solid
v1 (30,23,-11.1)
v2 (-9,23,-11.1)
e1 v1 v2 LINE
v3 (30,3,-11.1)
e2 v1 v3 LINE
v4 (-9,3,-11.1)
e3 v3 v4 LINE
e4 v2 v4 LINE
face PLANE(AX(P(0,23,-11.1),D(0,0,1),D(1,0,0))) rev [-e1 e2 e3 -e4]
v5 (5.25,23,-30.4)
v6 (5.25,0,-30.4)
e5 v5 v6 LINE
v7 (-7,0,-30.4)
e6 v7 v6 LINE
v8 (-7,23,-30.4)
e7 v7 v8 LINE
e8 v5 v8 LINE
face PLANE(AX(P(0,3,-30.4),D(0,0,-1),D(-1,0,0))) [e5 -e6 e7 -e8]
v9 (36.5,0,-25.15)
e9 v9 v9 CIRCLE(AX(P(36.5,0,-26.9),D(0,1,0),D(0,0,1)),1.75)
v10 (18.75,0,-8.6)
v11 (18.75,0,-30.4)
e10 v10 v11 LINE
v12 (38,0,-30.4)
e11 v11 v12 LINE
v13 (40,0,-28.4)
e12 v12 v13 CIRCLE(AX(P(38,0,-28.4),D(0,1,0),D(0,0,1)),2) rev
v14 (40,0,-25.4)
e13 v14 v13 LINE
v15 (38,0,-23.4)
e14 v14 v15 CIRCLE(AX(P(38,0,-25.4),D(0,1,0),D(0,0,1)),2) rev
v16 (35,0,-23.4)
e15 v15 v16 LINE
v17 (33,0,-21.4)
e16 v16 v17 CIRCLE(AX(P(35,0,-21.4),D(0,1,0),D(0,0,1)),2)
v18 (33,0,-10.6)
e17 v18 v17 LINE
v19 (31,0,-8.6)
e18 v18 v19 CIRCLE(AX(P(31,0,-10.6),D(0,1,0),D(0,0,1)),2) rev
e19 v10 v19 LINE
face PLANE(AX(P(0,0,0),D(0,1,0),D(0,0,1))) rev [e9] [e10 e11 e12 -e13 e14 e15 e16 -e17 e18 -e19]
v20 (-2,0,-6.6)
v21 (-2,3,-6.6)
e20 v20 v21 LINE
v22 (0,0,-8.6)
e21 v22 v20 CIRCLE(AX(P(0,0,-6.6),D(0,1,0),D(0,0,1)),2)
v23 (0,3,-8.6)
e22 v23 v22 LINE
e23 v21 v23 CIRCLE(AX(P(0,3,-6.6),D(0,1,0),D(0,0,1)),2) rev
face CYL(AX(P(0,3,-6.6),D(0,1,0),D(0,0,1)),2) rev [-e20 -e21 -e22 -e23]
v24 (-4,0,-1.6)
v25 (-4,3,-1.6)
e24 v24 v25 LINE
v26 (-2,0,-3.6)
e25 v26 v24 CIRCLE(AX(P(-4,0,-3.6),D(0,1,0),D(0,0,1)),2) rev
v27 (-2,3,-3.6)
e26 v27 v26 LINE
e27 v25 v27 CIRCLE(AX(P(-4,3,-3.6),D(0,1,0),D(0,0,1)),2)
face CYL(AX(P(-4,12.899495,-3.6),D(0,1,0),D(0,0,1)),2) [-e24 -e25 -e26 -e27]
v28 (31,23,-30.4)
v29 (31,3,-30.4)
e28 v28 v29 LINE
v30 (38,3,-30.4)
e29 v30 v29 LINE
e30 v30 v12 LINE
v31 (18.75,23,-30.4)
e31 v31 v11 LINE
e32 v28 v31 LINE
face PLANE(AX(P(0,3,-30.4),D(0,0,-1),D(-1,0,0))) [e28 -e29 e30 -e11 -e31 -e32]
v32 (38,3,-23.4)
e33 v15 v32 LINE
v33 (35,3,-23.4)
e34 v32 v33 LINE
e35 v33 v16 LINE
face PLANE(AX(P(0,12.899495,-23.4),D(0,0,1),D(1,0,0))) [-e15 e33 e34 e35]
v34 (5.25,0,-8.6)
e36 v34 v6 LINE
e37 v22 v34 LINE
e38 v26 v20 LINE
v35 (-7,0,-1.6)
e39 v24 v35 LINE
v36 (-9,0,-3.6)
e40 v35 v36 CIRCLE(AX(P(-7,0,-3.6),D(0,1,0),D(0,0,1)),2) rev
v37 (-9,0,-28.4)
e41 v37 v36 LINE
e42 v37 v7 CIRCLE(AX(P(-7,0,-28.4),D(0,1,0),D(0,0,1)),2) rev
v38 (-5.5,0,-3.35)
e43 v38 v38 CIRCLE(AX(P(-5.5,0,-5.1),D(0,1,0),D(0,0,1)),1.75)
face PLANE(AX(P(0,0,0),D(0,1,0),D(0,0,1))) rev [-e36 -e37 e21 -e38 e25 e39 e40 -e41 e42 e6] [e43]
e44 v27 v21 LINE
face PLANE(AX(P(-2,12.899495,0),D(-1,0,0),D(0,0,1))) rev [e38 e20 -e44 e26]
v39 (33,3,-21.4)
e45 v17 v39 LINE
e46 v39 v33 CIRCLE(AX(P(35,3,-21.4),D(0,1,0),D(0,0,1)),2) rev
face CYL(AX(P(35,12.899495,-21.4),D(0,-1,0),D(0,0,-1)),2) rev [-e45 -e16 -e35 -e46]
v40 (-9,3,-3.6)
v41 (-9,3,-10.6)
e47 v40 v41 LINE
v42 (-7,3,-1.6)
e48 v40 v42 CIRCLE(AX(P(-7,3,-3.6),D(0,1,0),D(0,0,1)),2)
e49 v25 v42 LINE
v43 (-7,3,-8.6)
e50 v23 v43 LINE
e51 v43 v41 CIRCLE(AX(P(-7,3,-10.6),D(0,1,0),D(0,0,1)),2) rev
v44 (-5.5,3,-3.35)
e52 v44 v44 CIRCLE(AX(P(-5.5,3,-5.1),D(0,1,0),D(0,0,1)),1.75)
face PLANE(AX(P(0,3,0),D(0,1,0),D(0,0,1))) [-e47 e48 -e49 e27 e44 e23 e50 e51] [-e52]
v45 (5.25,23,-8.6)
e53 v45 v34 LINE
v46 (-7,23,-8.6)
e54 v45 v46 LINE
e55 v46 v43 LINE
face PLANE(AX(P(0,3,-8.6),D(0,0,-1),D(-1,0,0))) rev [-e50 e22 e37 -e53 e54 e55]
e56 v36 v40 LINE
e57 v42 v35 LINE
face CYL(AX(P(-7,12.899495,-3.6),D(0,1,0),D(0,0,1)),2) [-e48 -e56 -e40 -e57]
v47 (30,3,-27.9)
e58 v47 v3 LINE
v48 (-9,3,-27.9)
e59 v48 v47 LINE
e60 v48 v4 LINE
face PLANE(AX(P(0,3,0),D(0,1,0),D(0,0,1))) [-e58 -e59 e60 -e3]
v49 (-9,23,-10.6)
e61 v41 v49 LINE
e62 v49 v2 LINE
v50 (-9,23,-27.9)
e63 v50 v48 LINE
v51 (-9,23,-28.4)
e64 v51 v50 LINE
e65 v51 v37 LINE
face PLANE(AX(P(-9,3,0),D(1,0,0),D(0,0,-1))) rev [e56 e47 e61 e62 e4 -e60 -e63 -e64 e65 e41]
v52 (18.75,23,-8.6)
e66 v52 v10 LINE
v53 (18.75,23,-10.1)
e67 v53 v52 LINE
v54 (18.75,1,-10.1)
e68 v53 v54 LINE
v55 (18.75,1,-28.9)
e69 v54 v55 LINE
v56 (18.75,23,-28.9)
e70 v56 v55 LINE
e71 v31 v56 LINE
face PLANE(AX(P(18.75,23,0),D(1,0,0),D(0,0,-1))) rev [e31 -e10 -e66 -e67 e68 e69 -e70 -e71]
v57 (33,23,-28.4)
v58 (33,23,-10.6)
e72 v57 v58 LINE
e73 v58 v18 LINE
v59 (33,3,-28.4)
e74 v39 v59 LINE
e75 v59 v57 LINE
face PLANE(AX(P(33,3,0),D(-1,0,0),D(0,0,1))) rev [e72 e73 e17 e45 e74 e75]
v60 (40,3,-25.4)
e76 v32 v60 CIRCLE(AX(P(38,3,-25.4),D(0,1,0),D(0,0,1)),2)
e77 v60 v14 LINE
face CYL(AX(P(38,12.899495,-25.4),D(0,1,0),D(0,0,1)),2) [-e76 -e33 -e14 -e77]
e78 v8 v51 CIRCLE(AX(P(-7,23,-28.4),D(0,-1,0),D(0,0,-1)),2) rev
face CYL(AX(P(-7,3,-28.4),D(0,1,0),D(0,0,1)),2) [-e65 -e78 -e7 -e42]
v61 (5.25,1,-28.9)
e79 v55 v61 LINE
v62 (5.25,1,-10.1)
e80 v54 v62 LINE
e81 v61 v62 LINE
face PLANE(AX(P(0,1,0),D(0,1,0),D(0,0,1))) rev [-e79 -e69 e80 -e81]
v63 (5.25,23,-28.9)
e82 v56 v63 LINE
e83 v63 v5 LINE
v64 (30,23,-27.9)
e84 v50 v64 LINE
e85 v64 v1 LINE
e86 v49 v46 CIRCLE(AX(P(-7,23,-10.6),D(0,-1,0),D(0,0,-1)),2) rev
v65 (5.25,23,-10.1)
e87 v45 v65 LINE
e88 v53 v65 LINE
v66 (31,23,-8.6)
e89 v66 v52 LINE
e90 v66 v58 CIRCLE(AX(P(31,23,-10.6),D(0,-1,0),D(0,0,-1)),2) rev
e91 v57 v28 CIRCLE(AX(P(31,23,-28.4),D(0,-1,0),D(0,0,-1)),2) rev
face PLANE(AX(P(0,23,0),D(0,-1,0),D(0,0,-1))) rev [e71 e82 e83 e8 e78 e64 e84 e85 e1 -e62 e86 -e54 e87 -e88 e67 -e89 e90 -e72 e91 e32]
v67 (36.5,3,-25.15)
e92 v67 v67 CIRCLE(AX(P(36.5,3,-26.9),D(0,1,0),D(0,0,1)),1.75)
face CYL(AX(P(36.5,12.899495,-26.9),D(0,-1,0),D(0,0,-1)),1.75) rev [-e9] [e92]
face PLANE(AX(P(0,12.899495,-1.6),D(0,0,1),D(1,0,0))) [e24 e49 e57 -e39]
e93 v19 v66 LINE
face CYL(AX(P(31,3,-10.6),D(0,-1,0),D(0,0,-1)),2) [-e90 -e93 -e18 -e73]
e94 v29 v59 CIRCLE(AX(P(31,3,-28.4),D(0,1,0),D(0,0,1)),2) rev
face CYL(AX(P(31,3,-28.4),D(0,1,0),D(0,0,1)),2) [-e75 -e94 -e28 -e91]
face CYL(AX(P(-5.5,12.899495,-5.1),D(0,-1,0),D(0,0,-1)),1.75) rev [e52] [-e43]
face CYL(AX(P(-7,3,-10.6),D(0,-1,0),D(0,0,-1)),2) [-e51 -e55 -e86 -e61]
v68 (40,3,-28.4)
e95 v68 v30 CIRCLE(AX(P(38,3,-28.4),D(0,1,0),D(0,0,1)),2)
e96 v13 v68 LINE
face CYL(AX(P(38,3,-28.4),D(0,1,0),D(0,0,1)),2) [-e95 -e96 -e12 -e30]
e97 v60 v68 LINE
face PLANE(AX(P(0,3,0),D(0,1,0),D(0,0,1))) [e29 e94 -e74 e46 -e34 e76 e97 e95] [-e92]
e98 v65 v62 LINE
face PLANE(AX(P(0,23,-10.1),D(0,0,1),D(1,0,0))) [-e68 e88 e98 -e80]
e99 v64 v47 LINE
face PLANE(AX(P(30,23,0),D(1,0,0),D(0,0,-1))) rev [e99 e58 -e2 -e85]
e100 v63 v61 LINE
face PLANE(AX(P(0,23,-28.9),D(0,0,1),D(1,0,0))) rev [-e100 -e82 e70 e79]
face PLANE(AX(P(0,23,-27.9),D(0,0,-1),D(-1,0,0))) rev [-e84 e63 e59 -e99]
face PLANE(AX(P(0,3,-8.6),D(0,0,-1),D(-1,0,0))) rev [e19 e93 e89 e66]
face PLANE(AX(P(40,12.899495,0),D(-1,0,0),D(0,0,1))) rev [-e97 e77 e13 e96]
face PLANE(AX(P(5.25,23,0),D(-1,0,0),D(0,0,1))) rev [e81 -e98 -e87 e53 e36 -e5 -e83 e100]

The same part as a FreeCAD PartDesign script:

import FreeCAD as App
import Part
import Sketcher
from FreeCAD import Vector
Q = App.Units.Quantity


def edges_at(feature, points):
    """Names of the edges that pass closest to the given points."""
    edges = feature.Shape.Edges
    near = lambda p: min(range(len(edges)), key=lambda i: edges[i].distToShape(Part.Vertex(*p))[0])
    return sorted({f"Edge{near(p) + 1}" for p in points})

doc = App.newDocument("Part")
params = doc.addObject("Spreadsheet::Sheet", "Params")
for row, (alias, value) in enumerate([
    ("sketch1_width", "42 mm"),
    ("sketch1_height", "21.8 mm"),
    ("pad1_length", "3 mm"),
    ("sketch2_width", "39 mm"),
    ("sketch2_width2", "13.5 mm"),
    ("sketch2_height", "16.8 mm"),
    ("sketch2_height2", "2.5 mm"),
    ("sketch2_height3", "1.5 mm"),
    ("pad2_length", "20 mm"),
    ("sketch3_width", "13.5 mm"),
    ("sketch3_height", "1.5 mm"),
    ("sketch4_width", "13.5 mm"),
    ("sketch4_height", "21.8 mm"),
    ("pocket2_length", "1 mm"),
    ("sketch5_diameter", "3.5 mm"),
    ("sketch5_width", "7 mm"),
    ("pad3_length", "3 mm"),
    ("fillet_radius", "2 mm"),
], start=1):
    params.set(f"A{row}", alias)
    params.set(f"B{row}", "=" + value)
    params.setAlias(f"B{row}", alias)

body = doc.addObject("PartDesign::Body", "Body")

# Sketch on XZ plane
sketch1 = body.newObject("Sketcher::SketchObject", "Sketch")
sketch1.AttachmentSupport = (doc.getObject("XZ_Plane"), [""])
sketch1.MapMode = "FlatFace"
sketch1.addGeometry([
    Part.LineSegment(Vector(-9, -30.4, 0), Vector(-9, -8.6, 0)),
    Part.LineSegment(Vector(-9, -8.6, 0), Vector(33, -8.6, 0)),
    Part.LineSegment(Vector(33, -8.6, 0), Vector(33, -30.4, 0)),
    Part.LineSegment(Vector(33, -30.4, 0), Vector(-9, -30.4, 0)),
], False)
sketch1.addConstraint([
    Sketcher.Constraint("Coincident", 0, 2, 1, 1),
    Sketcher.Constraint("Coincident", 1, 2, 2, 1),
    Sketcher.Constraint("Coincident", 2, 2, 3, 1),
    Sketcher.Constraint("Coincident", 3, 2, 0, 1),
    Sketcher.Constraint("Vertical", 0),
    Sketcher.Constraint("Horizontal", 1),
    Sketcher.Constraint("Vertical", 2),
    Sketcher.Constraint("Horizontal", 3),
    Sketcher.Constraint("DistanceX", 1, 1, 1, 2, Q("42 mm")),
    Sketcher.Constraint("DistanceY", 0, 1, 0, 2, Q("21.8 mm")),
    Sketcher.Constraint("DistanceX", 0, 2, -1, 1, Q("9 mm")),
    Sketcher.Constraint("DistanceY", 0, 2, -1, 1, Q("8.6 mm")),
])
sketch1.setExpression("Constraints[8]", "Params.sketch1_width")
sketch1.setExpression("Constraints[9]", "Params.sketch1_height")
pad1 = body.newObject("PartDesign::Pad", "Pad")
pad1.Profile = sketch1
pad1.setExpression("Length", "Params.pad1_length")
pad1.Reversed = True

# Sketch on XZ plane
sketch2 = body.newObject("Sketcher::SketchObject", "Sketch001")
sketch2.AttachmentSupport = (doc.getObject("XZ_Plane"), [""])
sketch2.MapMode = "FlatFace"
sketch2.AttachmentOffset = App.Placement(Vector(0, 0, -3), App.Rotation())
sketch2.addGeometry([
    Part.LineSegment(Vector(-9, -27.9, 0), Vector(30, -27.9, 0)),  # 0
    Part.LineSegment(Vector(30, -27.9, 0), Vector(30, -11.1, 0)),  # 1
    Part.LineSegment(Vector(30, -11.1, 0), Vector(-9, -11.1, 0)),  # 2
    Part.LineSegment(Vector(-9, -11.1, 0), Vector(-9, -8.6, 0)),  # 3
    Part.LineSegment(Vector(-9, -8.6, 0), Vector(5.25, -8.6, 0)),  # 4
    Part.LineSegment(Vector(5.25, -8.6, 0), Vector(5.25, -10.1, 0)),  # 5
    Part.LineSegment(Vector(5.25, -10.1, 0), Vector(18.75, -10.1, 0)),  # 6
    Part.LineSegment(Vector(18.75, -10.1, 0), Vector(18.75, -8.6, 0)),  # 7
    Part.LineSegment(Vector(18.75, -8.6, 0), Vector(33, -8.6, 0)),  # 8
    Part.LineSegment(Vector(33, -8.6, 0), Vector(33, -30.4, 0)),  # 9
    Part.LineSegment(Vector(33, -30.4, 0), Vector(18.75, -30.4, 0)),  # 10
    Part.LineSegment(Vector(18.75, -30.4, 0), Vector(18.75, -28.9, 0)),  # 11
    Part.LineSegment(Vector(18.75, -28.9, 0), Vector(5.25, -28.9, 0)),  # 12
    Part.LineSegment(Vector(5.25, -28.9, 0), Vector(5.25, -30.4, 0)),  # 13
    Part.LineSegment(Vector(5.25, -30.4, 0), Vector(-9, -30.4, 0)),  # 14
    Part.LineSegment(Vector(-9, -30.4, 0), Vector(-9, -27.9, 0)),  # 15
], False)
sketch2.addConstraint([
    Sketcher.Constraint("Coincident", 0, 2, 1, 1),
    Sketcher.Constraint("Coincident", 1, 2, 2, 1),
    Sketcher.Constraint("Coincident", 2, 2, 3, 1),
    Sketcher.Constraint("Coincident", 3, 2, 4, 1),
    Sketcher.Constraint("Coincident", 4, 2, 5, 1),
    Sketcher.Constraint("Coincident", 5, 2, 6, 1),
    Sketcher.Constraint("Coincident", 6, 2, 7, 1),
    Sketcher.Constraint("Coincident", 7, 2, 8, 1),
    Sketcher.Constraint("Coincident", 8, 2, 9, 1),
    Sketcher.Constraint("Coincident", 9, 2, 10, 1),
    Sketcher.Constraint("Coincident", 10, 2, 11, 1),
    Sketcher.Constraint("Coincident", 11, 2, 12, 1),
    Sketcher.Constraint("Coincident", 12, 2, 13, 1),
    Sketcher.Constraint("Coincident", 13, 2, 14, 1),
    Sketcher.Constraint("Coincident", 14, 2, 15, 1),
    Sketcher.Constraint("Coincident", 15, 2, 0, 1),
    Sketcher.Constraint("Horizontal", 0),
    Sketcher.Constraint("Vertical", 1),
    Sketcher.Constraint("Horizontal", 2),
    Sketcher.Constraint("Vertical", 3),
    Sketcher.Constraint("Horizontal", 4),
    Sketcher.Constraint("Vertical", 5),
    Sketcher.Constraint("Horizontal", 6),
    Sketcher.Constraint("Vertical", 7),
    Sketcher.Constraint("Horizontal", 8),
    Sketcher.Constraint("Vertical", 9),
    Sketcher.Constraint("Horizontal", 10),
    Sketcher.Constraint("Vertical", 11),
    Sketcher.Constraint("Horizontal", 12),
    Sketcher.Constraint("Vertical", 13),
    Sketcher.Constraint("Horizontal", 14),
    Sketcher.Constraint("Vertical", 15),
    Sketcher.Constraint("Horizontal", 4, 2, 7, 2),
    Sketcher.Constraint("Horizontal", 10, 2, 13, 2),
    Sketcher.Constraint("Vertical", 7, 2, 10, 2),
    Sketcher.Constraint("Vertical", 5, 2, 12, 2),
    Sketcher.Constraint("Vertical", 3, 2, 14, 2),
    Sketcher.Constraint("Equal", 4, 8),
    Sketcher.Constraint("Equal", 7, 11),
    Sketcher.Constraint("Equal", 3, 15),
    Sketcher.Constraint("DistanceX", 0, 1, 0, 2, Q("39 mm")),
    Sketcher.Constraint("DistanceX", 6, 1, 6, 2, Q("13.5 mm")),
    Sketcher.Constraint("DistanceY", 1, 1, 1, 2, Q("16.8 mm")),
    Sketcher.Constraint("DistanceY", 3, 1, 3, 2, Q("2.5 mm")),
    Sketcher.Constraint("DistanceY", 5, 2, 5, 1, Q("1.5 mm")),
    Sketcher.Constraint("DistanceX", -1, 1, 0, 2, Q("30 mm")),
    Sketcher.Constraint("DistanceX", -1, 1, 8, 2, Q("33 mm")),
    Sketcher.Constraint("DistanceY", 0, 2, -1, 1, Q("27.9 mm")),
])
sketch2.setExpression("Constraints[40]", "Params.sketch2_width")
sketch2.setExpression("Constraints[41]", "Params.sketch2_width2")
sketch2.setExpression("Constraints[42]", "Params.sketch2_height")
sketch2.setExpression("Constraints[43]", "Params.sketch2_height2")
sketch2.setExpression("Constraints[44]", "Params.sketch2_height3")
pad2 = body.newObject("PartDesign::Pad", "Pad001")
pad2.Profile = sketch2
pad2.setExpression("Length", "Params.pad2_length")
pad2.Reversed = True

# Sketch on XZ plane
sketch3 = body.newObject("Sketcher::SketchObject", "Sketch002")
sketch3.AttachmentSupport = (doc.getObject("XZ_Plane"), [""])
sketch3.MapMode = "FlatFace"
sketch3.addGeometry([
    Part.LineSegment(Vector(5.25, -30.4, 0), Vector(5.25, -28.9, 0)),  # 0
    Part.LineSegment(Vector(5.25, -28.9, 0), Vector(18.75, -28.9, 0)),  # 1
    Part.LineSegment(Vector(18.75, -28.9, 0), Vector(18.75, -30.4, 0)),  # 2
    Part.LineSegment(Vector(18.75, -30.4, 0), Vector(5.25, -30.4, 0)),  # 3
    Part.LineSegment(Vector(5.25, -10.1, 0), Vector(5.25, -8.6, 0)),  # 4
    Part.LineSegment(Vector(5.25, -8.6, 0), Vector(18.75, -8.6, 0)),  # 5
    Part.LineSegment(Vector(18.75, -8.6, 0), Vector(18.75, -10.1, 0)),  # 6
    Part.LineSegment(Vector(18.75, -10.1, 0), Vector(5.25, -10.1, 0)),  # 7
], False)
sketch3.addConstraint([
    Sketcher.Constraint("Coincident", 0, 2, 1, 1),
    Sketcher.Constraint("Coincident", 1, 2, 2, 1),
    Sketcher.Constraint("Coincident", 2, 2, 3, 1),
    Sketcher.Constraint("Coincident", 3, 2, 0, 1),
    Sketcher.Constraint("Coincident", 4, 2, 5, 1),
    Sketcher.Constraint("Coincident", 5, 2, 6, 1),
    Sketcher.Constraint("Coincident", 6, 2, 7, 1),
    Sketcher.Constraint("Coincident", 7, 2, 4, 1),
    Sketcher.Constraint("Vertical", 0),
    Sketcher.Constraint("Horizontal", 1),
    Sketcher.Constraint("Vertical", 2),
    Sketcher.Constraint("Horizontal", 3),
    Sketcher.Constraint("Vertical", 4),
    Sketcher.Constraint("Horizontal", 5),
    Sketcher.Constraint("Vertical", 6),
    Sketcher.Constraint("Horizontal", 7),
    Sketcher.Constraint("Vertical", 3, 2, 4, 2),
    Sketcher.Constraint("Vertical", 2, 2, 5, 2),
    Sketcher.Constraint("Equal", 2, 4),
    Sketcher.Constraint("DistanceX", 1, 1, 1, 2, Q("13.5 mm")),
    Sketcher.Constraint("DistanceY", 0, 1, 0, 2, Q("1.5 mm")),
    Sketcher.Constraint("DistanceY", 0, 2, -1, 1, Q("28.9 mm")),
    Sketcher.Constraint("DistanceY", 4, 2, -1, 1, Q("8.6 mm")),
    Sketcher.Constraint("DistanceX", -1, 1, 0, 2, Q("5.25 mm")),
])
sketch3.setExpression("Constraints[19]", "Params.sketch3_width")
sketch3.setExpression("Constraints[20]", "Params.sketch3_height")
pocket1 = body.newObject("PartDesign::Pocket", "Pocket")
pocket1.Profile = sketch3
pocket1.Type = "ThroughAll"
pocket1.Midplane = True

# Sketch on XZ plane
sketch4 = body.newObject("Sketcher::SketchObject", "Sketch003")
sketch4.AttachmentSupport = (doc.getObject("XZ_Plane"), [""])
sketch4.MapMode = "FlatFace"
sketch4.addGeometry([
    Part.LineSegment(Vector(18.75, -30.4, 0), Vector(5.25, -30.4, 0)),
    Part.LineSegment(Vector(5.25, -30.4, 0), Vector(5.25, -8.6, 0)),
    Part.LineSegment(Vector(5.25, -8.6, 0), Vector(18.75, -8.6, 0)),
    Part.LineSegment(Vector(18.75, -8.6, 0), Vector(18.75, -30.4, 0)),
], False)
sketch4.addConstraint([
    Sketcher.Constraint("Coincident", 0, 2, 1, 1),
    Sketcher.Constraint("Coincident", 1, 2, 2, 1),
    Sketcher.Constraint("Coincident", 2, 2, 3, 1),
    Sketcher.Constraint("Coincident", 3, 2, 0, 1),
    Sketcher.Constraint("Horizontal", 0),
    Sketcher.Constraint("Vertical", 1),
    Sketcher.Constraint("Horizontal", 2),
    Sketcher.Constraint("Vertical", 3),
    Sketcher.Constraint("DistanceX", 0, 2, 0, 1, Q("13.5 mm")),
    Sketcher.Constraint("DistanceY", 1, 1, 1, 2, Q("21.8 mm")),
    Sketcher.Constraint("DistanceY", 0, 2, -1, 1, Q("30.4 mm")),
    Sketcher.Constraint("DistanceX", -1, 1, 0, 2, Q("5.25 mm")),
])
sketch4.setExpression("Constraints[8]", "Params.sketch4_width")
sketch4.setExpression("Constraints[9]", "Params.sketch4_height")
pocket2 = body.newObject("PartDesign::Pocket", "Pocket001")
pocket2.Profile = sketch4
pocket2.setExpression("Length", "Params.pocket2_length")

# Sketch on XZ plane
sketch5 = body.newObject("Sketcher::SketchObject", "Sketch004")
sketch5.AttachmentSupport = (doc.getObject("XZ_Plane"), [""])
sketch5.MapMode = "FlatFace"
sketch5.addGeometry([
    Part.LineSegment(Vector(-2, -1.6, 0), Vector(-2, -8.6, 0)),  # 0
    Part.LineSegment(Vector(-2, -8.6, 0), Vector(-9, -8.6, 0)),  # 1
    Part.LineSegment(Vector(-9, -8.6, 0), Vector(-9, -1.6, 0)),  # 2
    Part.LineSegment(Vector(-9, -1.6, 0), Vector(-2, -1.6, 0)),  # 3
    Part.Circle(Vector(-5.5, -5.1, 0), Vector(0, 0, 1), 1.75),  # 4
    Part.LineSegment(Vector(40, -23.4, 0), Vector(40, -30.4, 0)),  # 5
    Part.LineSegment(Vector(40, -30.4, 0), Vector(33, -30.4, 0)),  # 6
    Part.LineSegment(Vector(33, -30.4, 0), Vector(33, -23.4, 0)),  # 7
    Part.LineSegment(Vector(33, -23.4, 0), Vector(40, -23.4, 0)),  # 8
    Part.Circle(Vector(36.5, -26.9, 0), Vector(0, 0, 1), 1.75),  # 9
], False)
sketch5.addConstraint([
    Sketcher.Constraint("Coincident", 0, 2, 1, 1),
    Sketcher.Constraint("Coincident", 1, 2, 2, 1),
    Sketcher.Constraint("Coincident", 2, 2, 3, 1),
    Sketcher.Constraint("Coincident", 3, 2, 0, 1),
    Sketcher.Constraint("Coincident", 5, 2, 6, 1),
    Sketcher.Constraint("Coincident", 6, 2, 7, 1),
    Sketcher.Constraint("Coincident", 7, 2, 8, 1),
    Sketcher.Constraint("Coincident", 8, 2, 5, 1),
    Sketcher.Constraint("Vertical", 0),
    Sketcher.Constraint("Horizontal", 1),
    Sketcher.Constraint("Vertical", 2),
    Sketcher.Constraint("Horizontal", 3),
    Sketcher.Constraint("Vertical", 5),
    Sketcher.Constraint("Horizontal", 6),
    Sketcher.Constraint("Vertical", 7),
    Sketcher.Constraint("Horizontal", 8),
    Sketcher.Constraint("Equal", 4, 9),
    Sketcher.Constraint("Equal", 3, 6),
    Sketcher.Constraint("Equal", 8, 0),
    Sketcher.Constraint("Equal", 2, 5),
    Sketcher.Constraint("Diameter", 4, Q("3.5 mm")),
    Sketcher.Constraint("DistanceX", 1, 2, 1, 1, Q("7 mm")),
    Sketcher.Constraint("DistanceX", 0, 2, -1, 1, Q("2 mm")),
    Sketcher.Constraint("DistanceX", -1, 1, 5, 2, Q("40 mm")),
    Sketcher.Constraint("DistanceX", 4, 3, 9, 3, Q("42 mm")),
    Sketcher.Constraint("DistanceX", 4, 3, -1, 1, Q("5.5 mm")),
    Sketcher.Constraint("DistanceY", 4, 3, -1, 1, Q("5.1 mm")),
    Sketcher.Constraint("DistanceY", 9, 3, -1, 1, Q("26.9 mm")),
    Sketcher.Constraint("DistanceY", 0, 2, -1, 1, Q("8.6 mm")),
    Sketcher.Constraint("DistanceY", 5, 2, -1, 1, Q("30.4 mm")),
])
sketch5.setExpression("Constraints[20]", "Params.sketch5_diameter")
sketch5.setExpression("Constraints[21]", "Params.sketch5_width")
pad3 = body.newObject("PartDesign::Pad", "Pad002")
pad3.Profile = sketch5
pad3.setExpression("Length", "Params.pad3_length")
pad3.Reversed = True
doc.recompute()

fillet = body.newObject("PartDesign::Fillet", "Fillet")
fillet.Base = (pad3, edges_at(pad3, [
    (33, 11.5, -8.6),
    (-9, 13, -8.6),
    (-9, 11.5, -30.4),
    (33, 13, -30.4),
    (-9, 1.5, -1.6),
    (-2, 1.5, -1.6),
    (-2, 1.5, -8.6),
    (33, 1.5, -23.4),
    (40, 1.5, -23.4),
    (40, 1.5, -30.4),
]))
fillet.setExpression("Radius", "Params.fillet_radius")

doc.recompute()
